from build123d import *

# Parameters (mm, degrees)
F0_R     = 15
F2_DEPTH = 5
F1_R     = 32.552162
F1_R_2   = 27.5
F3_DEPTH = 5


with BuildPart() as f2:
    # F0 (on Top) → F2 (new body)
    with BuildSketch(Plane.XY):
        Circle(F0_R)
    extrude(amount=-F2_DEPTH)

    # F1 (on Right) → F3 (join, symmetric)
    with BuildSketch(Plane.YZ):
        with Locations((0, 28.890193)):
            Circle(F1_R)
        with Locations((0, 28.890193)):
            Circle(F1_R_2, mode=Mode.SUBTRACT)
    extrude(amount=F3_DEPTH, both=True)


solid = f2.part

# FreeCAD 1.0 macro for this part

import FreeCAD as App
import Part
import Sketcher

V = App.Vector

doc = App.newDocument("Part")
body = doc.addObject("PartDesign::Body", "Body")

# Sketch on XY plane
sketch1 = body.newObject("Sketcher::SketchObject", "Sketch")
sketch1.AttachmentSupport = (doc.getObject("XY_Plane"), [""])
sketch1.MapMode = "FlatFace"
sketch1.addGeometry(Part.Circle(V(0, 0, 0), V(0, 0, 1), 15), False)
sketch1.addConstraint(Sketcher.Constraint("Coincident", 0, 3, -1, 1))
sketch1.addConstraint(Sketcher.Constraint("Diameter", 0, 30.0))
pad1 = body.newObject("PartDesign::Pad", "Pad")
pad1.Profile = sketch1
pad1.Length = 5
pad1.Reversed = True

# Sketch on YZ plane
sketch2 = body.newObject("Sketcher::SketchObject", "Sketch001")
sketch2.AttachmentSupport = (doc.getObject("YZ_Plane"), [""])
sketch2.MapMode = "FlatFace"
sketch2.addGeometry(Part.Circle(V(0, 28.890193, 0), V(0, 0, 1), 32.552162), False)
sketch2.addGeometry(Part.Circle(V(0, 28.890193, 0), V(0, 0, 1), 27.5), False)
sketch2.addConstraint(Sketcher.Constraint("Coincident", 1, 3, 0, 3))
sketch2.addConstraint(Sketcher.Constraint("PointOnObject", 0, 3, -2))
sketch2.addConstraint(Sketcher.Constraint("Diameter", 1, 55.0))
sketch2.addConstraint(Sketcher.Constraint("Diameter", 0, 65.104324))
sketch2.addConstraint(Sketcher.Constraint("DistanceY", -1, 1, 0, 3, 28.890193))
pad2 = body.newObject("PartDesign::Pad", "Pad001")
pad2.Profile = sketch2
pad2.Length = 10
pad2.Midplane = True

doc.recompute()
